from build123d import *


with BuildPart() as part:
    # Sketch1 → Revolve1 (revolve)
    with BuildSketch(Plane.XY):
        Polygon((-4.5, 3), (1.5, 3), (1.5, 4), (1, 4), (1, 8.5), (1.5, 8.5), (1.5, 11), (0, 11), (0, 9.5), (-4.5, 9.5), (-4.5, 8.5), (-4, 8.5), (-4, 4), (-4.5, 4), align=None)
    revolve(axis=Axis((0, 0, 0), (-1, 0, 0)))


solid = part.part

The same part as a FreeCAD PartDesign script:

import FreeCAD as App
import Part
import Sketcher

V = App.Vector

doc = App.newDocument("Part")
body = doc.addObject("PartDesign::Body", "Body")

sketch1 = doc.addObject("Sketcher::SketchObject", "Sketch")
body.addObject(sketch1)
sketch1.AttachmentSupport = (doc.XY_Plane, [""])
sketch1.MapMode = "FlatFace"
sketch1.addGeometry(Part.LineSegment(V(-4.5, 3, 0), V(1.5, 3, 0)), False)
sketch1.addGeometry(Part.LineSegment(V(1.5, 3, 0), V(1.5, 4, 0)), False)
sketch1.addGeometry(Part.LineSegment(V(1.5, 4, 0), V(1, 4, 0)), False)
sketch1.addGeometry(Part.LineSegment(V(1, 4, 0), V(1, 8.5, 0)), False)
sketch1.addGeometry(Part.LineSegment(V(1, 8.5, 0), V(1.5, 8.5, 0)), False)
sketch1.addGeometry(Part.LineSegment(V(1.5, 8.5, 0), V(1.5, 11, 0)), False)
sketch1.addGeometry(Part.LineSegment(V(1.5, 11, 0), V(0, 11, 0)), False)
sketch1.addGeometry(Part.LineSegment(V(0, 11, 0), V(0, 9.5, 0)), False)
sketch1.addGeometry(Part.LineSegment(V(0, 9.5, 0), V(-4.5, 9.5, 0)), False)
sketch1.addGeometry(Part.LineSegment(V(-4.5, 9.5, 0), V(-4.5, 8.5, 0)), False)
sketch1.addGeometry(Part.LineSegment(V(-4.5, 8.5, 0), V(-4, 8.5, 0)), False)
sketch1.addGeometry(Part.LineSegment(V(-4, 8.5, 0), V(-4, 4, 0)), False)
sketch1.addGeometry(Part.LineSegment(V(-4, 4, 0), V(-4.5, 4, 0)), False)
sketch1.addGeometry(Part.LineSegment(V(-4.5, 4, 0), V(-4.5, 3, 0)), False)
sketch1.addConstraint(Sketcher.Constraint("Coincident", 0, 2, 1, 1))
sketch1.addConstraint(Sketcher.Constraint("Coincident", 1, 2, 2, 1))
sketch1.addConstraint(Sketcher.Constraint("Coincident", 2, 2, 3, 1))
sketch1.addConstraint(Sketcher.Constraint("Coincident", 3, 2, 4, 1))
sketch1.addConstraint(Sketcher.Constraint("Coincident", 4, 2, 5, 1))
sketch1.addConstraint(Sketcher.Constraint("Coincident", 5, 2, 6, 1))
sketch1.addConstraint(Sketcher.Constraint("Coincident", 6, 2, 7, 1))
sketch1.addConstraint(Sketcher.Constraint("Coincident", 7, 2, 8, 1))
sketch1.addConstraint(Sketcher.Constraint("Coincident", 8, 2, 9, 1))
sketch1.addConstraint(Sketcher.Constraint("Coincident", 9, 2, 10, 1))
sketch1.addConstraint(Sketcher.Constraint("Coincident", 10, 2, 11, 1))
sketch1.addConstraint(Sketcher.Constraint("Coincident", 11, 2, 12, 1))
sketch1.addConstraint(Sketcher.Constraint("Coincident", 12, 2, 13, 1))
sketch1.addConstraint(Sketcher.Constraint("Coincident", 13, 2, 0, 1))
sketch1.addConstraint(Sketcher.Constraint("Horizontal", 0))
sketch1.addConstraint(Sketcher.Constraint("Vertical", 1))
sketch1.addConstraint(Sketcher.Constraint("Horizontal", 2))
sketch1.addConstraint(Sketcher.Constraint("Vertical", 3))
sketch1.addConstraint(Sketcher.Constraint("Horizontal", 4))
sketch1.addConstraint(Sketcher.Constraint("Vertical", 5))
sketch1.addConstraint(Sketcher.Constraint("Horizontal", 6))
sketch1.addConstraint(Sketcher.Constraint("Vertical", 7))
sketch1.addConstraint(Sketcher.Constraint("Horizontal", 8))
sketch1.addConstraint(Sketcher.Constraint("Vertical", 9))
sketch1.addConstraint(Sketcher.Constraint("Horizontal", 10))
sketch1.addConstraint(Sketcher.Constraint("Vertical", 11))
sketch1.addConstraint(Sketcher.Constraint("Horizontal", 12))
sketch1.addConstraint(Sketcher.Constraint("Vertical", 13))
sketch1.addConstraint(Sketcher.Constraint("PointOnObject", 6, 2, -2))
sketch1.addConstraint(Sketcher.Constraint("Horizontal", 4, 2, 9, 2))
sketch1.addConstraint(Sketcher.Constraint("Horizontal", 2, 2, 11, 2))
sketch1.addConstraint(Sketcher.Constraint("Vertical", 1, 2, 4, 2))
sketch1.addConstraint(Sketcher.Constraint("Vertical", 9, 2, 12, 2))
sketch1.addConstraint(Sketcher.Constraint("Equal", 4, 10))
sketch1.addConstraint(Sketcher.Constraint("Equal", 8, 3))
sketch1.addConstraint(Sketcher.Constraint("Equal", 6, 7))
sketch1.addConstraint(Sketcher.Constraint("Equal", 1, 9))
sketch1.addConstraint(Sketcher.Constraint("DistanceX", 0, 1, 0, 2, 6.0))
sketch1.addConstraint(Sketcher.Constraint("DistanceY", 1, 1, 1, 2, 1.0))
sketch1.addConstraint(Sketcher.Constraint("DistanceX", 2, 2, 2, 1, 0.5))
sketch1.addConstraint(Sketcher.Constraint("DistanceX", 6, 2, 6, 1, 1.5))
sketch1.addConstraint(Sketcher.Constraint("DistanceY", -1, 1, 0, 2, 3.0))
revolution = doc.addObject("PartDesign::Revolution", "Revolution")
body.addObject(revolution)
revolution.Profile = sketch1
revolution.ReferenceAxis = (sketch1, ["H_Axis"])
revolution.Angle = 360

doc.recompute()
